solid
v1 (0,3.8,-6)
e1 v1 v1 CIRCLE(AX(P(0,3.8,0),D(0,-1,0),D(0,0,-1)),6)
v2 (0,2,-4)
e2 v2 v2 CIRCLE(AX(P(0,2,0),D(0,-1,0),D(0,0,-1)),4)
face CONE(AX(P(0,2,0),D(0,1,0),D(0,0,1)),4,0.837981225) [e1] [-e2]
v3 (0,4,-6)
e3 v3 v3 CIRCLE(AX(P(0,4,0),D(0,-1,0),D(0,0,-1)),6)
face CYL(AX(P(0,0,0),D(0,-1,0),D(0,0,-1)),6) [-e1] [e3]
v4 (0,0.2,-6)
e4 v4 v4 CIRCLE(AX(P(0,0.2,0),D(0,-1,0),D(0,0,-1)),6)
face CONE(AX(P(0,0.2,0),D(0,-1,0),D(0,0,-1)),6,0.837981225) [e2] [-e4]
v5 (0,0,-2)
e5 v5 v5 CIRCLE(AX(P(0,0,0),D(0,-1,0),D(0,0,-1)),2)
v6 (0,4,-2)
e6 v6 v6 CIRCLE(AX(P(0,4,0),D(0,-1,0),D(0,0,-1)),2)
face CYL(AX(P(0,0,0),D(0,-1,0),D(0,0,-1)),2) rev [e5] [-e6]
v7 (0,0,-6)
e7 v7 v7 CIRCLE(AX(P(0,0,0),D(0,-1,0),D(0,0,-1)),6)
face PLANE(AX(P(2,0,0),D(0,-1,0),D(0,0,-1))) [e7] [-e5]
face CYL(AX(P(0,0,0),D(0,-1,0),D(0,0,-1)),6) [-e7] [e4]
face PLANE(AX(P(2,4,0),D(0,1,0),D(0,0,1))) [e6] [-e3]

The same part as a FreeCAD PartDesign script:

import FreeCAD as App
import Part
import Sketcher


def add_polygon(sketch, points):
    """Adds a closed chain of lines whose ends are joined by coincident constraints."""
    first, n = sketch.GeometryCount, len(points)
    for a, b in zip(points, points[1:] + points[:1]):
        sketch.addGeometry(Part.LineSegment(App.Vector(*a, 0), App.Vector(*b, 0)), False)
    for i in range(n):
        sketch.addConstraint(Sketcher.Constraint("Coincident", first + i, 2, first + (i + 1) % n, 1))

doc = App.newDocument("Part")
params = doc.addObject("Spreadsheet::Sheet", "Params")
for row, (alias, value) in enumerate([
    ("sketch1_width", "4 mm"),
    ("sketch1_height", "0.2 mm"),
    ("revolution_angle", "360 deg"),
], start=1):
    params.set(f"A{row}", alias)
    params.set(f"B{row}", "=" + value)
    params.setAlias(f"B{row}", alias)

body = doc.addObject("PartDesign::Body", "Body")

# Sketch on XY plane
sketch1 = body.newObject("Sketcher::SketchObject", "Sketch")
sketch1.AttachmentSupport = (doc.getObject("XY_Plane"), [""])
sketch1.MapMode = "FlatFace"
add_polygon(sketch1, [(2, 0), (6, 0), (6, 0.2), (4, 2), (6, 3.8), (6, 4), (2, 4)])  # lines 0-6
sketch1.addConstraint([
    Sketcher.Constraint("Horizontal", 0),
    Sketcher.Constraint("Vertical", 1),
    Sketcher.Constraint("Vertical", 4),
    Sketcher.Constraint("Horizontal", 5),
    Sketcher.Constraint("Vertical", 6),
    Sketcher.Constraint("PointOnObject", 0, 2, -1),
    Sketcher.Constraint("Vertical", 1, 2, 3, 2),
    Sketcher.Constraint("Equal", 1, 4),
    Sketcher.Constraint("Equal", 5, 6),
    Sketcher.Constraint("Equal", 2, 3),
    Sketcher.Constraint("DistanceX", 0, 1, 0, 2, 4.0),
    Sketcher.Constraint("DistanceY", 1, 1, 1, 2, 0.2),
    Sketcher.Constraint("DistanceX", -1, 1, 0, 2, 6.0),
    Sketcher.Constraint("DistanceX", -1, 1, 2, 2, 4.0),
])
sketch1.setExpression("Constraints[17]", "Params.sketch1_width")
sketch1.setExpression("Constraints[18]", "Params.sketch1_height")
revolution = body.newObject("PartDesign::Revolution", "Revolution")
revolution.Profile = sketch1
revolution.ReferenceAxis = (sketch1, ["V_Axis"])
revolution.setExpression("Angle", "Params.revolution_angle")

doc.recompute()
